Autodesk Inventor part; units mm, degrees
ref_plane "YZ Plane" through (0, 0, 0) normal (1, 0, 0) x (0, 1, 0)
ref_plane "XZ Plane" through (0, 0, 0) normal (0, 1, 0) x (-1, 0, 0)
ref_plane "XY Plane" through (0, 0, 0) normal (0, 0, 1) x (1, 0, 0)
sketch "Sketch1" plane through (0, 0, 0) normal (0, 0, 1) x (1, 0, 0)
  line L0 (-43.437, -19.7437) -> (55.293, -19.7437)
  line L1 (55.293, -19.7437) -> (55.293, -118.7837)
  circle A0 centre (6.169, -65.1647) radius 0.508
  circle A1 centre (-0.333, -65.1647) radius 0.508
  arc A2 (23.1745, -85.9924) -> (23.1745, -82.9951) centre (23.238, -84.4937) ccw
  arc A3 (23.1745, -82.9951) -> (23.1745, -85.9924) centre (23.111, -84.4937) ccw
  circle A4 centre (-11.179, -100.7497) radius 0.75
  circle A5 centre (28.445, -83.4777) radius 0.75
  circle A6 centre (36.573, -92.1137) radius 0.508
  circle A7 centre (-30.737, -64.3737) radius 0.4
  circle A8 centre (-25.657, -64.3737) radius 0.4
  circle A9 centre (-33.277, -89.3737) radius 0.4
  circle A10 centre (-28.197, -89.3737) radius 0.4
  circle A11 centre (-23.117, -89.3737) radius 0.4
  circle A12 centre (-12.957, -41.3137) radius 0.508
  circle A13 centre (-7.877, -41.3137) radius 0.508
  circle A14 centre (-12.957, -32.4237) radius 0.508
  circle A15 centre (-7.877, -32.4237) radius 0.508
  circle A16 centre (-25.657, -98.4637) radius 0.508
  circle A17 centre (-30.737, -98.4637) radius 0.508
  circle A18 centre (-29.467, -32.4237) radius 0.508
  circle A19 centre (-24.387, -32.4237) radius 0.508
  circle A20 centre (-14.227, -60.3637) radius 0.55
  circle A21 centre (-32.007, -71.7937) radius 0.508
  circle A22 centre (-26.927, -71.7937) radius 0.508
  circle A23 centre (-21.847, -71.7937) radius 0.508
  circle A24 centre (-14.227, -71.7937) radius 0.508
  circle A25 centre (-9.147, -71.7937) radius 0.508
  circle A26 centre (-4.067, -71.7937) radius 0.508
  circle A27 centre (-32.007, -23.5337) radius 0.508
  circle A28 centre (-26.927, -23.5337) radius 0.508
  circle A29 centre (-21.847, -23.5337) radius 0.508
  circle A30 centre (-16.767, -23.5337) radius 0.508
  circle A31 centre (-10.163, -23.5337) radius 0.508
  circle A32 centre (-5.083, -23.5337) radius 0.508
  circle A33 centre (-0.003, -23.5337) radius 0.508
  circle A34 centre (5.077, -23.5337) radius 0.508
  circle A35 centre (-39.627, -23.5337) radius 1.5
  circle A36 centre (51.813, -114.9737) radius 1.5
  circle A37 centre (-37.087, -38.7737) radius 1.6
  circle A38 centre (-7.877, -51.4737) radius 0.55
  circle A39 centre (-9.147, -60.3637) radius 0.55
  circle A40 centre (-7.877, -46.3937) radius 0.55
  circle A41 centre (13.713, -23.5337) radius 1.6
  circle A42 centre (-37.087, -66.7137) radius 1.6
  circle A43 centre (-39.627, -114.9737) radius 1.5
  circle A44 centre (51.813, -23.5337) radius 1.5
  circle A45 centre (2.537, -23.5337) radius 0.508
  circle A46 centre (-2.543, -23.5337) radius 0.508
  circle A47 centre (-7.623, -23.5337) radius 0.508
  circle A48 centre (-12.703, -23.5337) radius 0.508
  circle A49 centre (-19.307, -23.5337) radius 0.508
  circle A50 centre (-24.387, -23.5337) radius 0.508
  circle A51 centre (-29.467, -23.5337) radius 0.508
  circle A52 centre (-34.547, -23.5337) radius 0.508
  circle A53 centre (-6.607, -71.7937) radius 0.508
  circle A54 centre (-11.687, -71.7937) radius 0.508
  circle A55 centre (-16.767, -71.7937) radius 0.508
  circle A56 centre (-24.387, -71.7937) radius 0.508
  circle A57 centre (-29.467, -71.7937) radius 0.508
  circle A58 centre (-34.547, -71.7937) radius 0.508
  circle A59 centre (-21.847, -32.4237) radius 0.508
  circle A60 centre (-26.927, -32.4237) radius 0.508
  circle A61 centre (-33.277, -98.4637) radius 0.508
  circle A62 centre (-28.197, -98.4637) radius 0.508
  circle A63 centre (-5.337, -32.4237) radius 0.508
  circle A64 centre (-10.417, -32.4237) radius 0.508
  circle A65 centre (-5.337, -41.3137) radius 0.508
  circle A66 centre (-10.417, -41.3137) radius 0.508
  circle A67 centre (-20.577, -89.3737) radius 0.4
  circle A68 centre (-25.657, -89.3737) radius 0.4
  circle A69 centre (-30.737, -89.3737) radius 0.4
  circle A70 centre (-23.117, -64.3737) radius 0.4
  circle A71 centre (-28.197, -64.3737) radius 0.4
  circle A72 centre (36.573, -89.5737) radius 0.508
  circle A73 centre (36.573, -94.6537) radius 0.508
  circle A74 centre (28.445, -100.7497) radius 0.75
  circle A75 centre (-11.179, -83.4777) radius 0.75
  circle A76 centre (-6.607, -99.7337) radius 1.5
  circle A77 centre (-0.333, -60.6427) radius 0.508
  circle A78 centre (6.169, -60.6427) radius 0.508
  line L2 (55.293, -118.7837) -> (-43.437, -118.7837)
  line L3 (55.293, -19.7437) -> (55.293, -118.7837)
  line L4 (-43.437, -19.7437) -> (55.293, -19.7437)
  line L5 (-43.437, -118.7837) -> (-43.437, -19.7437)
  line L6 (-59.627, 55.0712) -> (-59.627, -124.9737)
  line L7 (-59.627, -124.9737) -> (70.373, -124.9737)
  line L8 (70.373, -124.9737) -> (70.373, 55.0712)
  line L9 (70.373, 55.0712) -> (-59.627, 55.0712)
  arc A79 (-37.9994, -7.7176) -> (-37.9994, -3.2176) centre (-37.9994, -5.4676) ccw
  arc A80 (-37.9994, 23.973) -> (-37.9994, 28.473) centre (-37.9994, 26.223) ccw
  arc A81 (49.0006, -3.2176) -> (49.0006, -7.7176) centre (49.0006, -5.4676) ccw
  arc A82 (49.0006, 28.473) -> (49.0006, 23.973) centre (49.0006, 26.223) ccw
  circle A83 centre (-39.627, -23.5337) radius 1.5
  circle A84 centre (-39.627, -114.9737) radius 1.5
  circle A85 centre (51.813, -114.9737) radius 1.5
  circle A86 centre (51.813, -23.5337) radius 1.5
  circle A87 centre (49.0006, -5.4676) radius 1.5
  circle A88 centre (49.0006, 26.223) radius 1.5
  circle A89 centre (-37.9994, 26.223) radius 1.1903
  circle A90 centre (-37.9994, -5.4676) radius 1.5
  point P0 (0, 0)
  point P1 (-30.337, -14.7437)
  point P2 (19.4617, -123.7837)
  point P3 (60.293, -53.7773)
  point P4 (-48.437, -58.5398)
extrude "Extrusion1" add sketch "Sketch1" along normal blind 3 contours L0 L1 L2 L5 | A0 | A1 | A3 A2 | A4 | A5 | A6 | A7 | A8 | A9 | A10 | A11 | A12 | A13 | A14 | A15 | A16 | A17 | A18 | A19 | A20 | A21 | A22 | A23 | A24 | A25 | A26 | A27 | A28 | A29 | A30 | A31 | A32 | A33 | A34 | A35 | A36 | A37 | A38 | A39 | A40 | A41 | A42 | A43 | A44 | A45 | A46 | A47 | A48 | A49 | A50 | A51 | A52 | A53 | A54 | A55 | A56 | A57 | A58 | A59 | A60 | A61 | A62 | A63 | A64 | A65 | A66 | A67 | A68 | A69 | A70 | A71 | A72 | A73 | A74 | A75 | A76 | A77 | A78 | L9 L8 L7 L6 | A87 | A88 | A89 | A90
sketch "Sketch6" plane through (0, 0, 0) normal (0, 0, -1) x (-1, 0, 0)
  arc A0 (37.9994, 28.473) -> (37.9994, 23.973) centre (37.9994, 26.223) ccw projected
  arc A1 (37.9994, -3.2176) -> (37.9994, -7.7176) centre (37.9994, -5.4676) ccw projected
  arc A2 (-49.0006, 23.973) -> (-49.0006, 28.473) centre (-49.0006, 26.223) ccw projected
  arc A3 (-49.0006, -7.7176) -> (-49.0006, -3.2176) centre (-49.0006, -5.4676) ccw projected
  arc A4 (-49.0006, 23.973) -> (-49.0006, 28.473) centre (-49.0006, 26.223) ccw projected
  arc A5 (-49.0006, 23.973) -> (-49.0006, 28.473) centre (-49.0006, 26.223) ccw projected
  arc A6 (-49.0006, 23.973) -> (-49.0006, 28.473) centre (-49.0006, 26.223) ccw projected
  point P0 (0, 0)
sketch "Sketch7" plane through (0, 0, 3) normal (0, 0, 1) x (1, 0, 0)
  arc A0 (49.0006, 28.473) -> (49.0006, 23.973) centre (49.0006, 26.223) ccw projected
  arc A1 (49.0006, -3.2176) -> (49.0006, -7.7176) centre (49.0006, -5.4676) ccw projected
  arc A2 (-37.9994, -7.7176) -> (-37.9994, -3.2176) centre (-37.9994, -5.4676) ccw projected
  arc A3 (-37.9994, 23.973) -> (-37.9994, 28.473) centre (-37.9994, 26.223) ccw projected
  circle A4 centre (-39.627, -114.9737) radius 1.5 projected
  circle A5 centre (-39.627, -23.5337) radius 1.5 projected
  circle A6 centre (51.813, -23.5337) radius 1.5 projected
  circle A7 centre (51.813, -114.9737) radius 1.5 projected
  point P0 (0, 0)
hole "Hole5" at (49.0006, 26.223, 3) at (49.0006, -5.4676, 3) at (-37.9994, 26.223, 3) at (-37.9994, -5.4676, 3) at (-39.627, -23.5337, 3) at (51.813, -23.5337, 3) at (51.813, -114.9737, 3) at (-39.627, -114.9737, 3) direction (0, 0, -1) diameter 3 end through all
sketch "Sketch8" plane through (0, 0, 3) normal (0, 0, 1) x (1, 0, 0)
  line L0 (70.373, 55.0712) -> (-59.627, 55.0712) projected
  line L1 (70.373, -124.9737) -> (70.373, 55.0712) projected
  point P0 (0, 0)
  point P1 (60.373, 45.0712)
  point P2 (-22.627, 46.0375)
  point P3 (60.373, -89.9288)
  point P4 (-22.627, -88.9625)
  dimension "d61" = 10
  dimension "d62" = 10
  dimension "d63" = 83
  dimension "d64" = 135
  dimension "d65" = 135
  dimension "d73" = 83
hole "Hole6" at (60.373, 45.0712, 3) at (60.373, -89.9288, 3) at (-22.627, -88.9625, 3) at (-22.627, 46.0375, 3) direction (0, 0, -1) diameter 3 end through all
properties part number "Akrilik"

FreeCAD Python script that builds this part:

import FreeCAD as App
import Part
import Sketcher
Q = App.Units.Quantity

doc = App.newDocument("Part")
body = doc.addObject("PartDesign::Body", "Body")

sketch1 = body.newObject("Sketcher::SketchObject", "Sketch")
sketch1.AttachmentSupport = (doc.getObject("XY_Plane"), [""])
sketch1.MapMode = "FlatFace"
sketch1.addGeometry(Part.LineSegment(App.Vector(70.373, 55.0712, 0), App.Vector(-59.627, 55.0712, 0)), False)
sketch1.addGeometry(Part.LineSegment(App.Vector(-59.627, 55.0712, 0), App.Vector(-59.627, -124.9737, 0)), False)
sketch1.addGeometry(Part.LineSegment(App.Vector(-59.627, -124.9737, 0), App.Vector(70.373, -124.9737, 0)), False)
sketch1.addGeometry(Part.LineSegment(App.Vector(70.373, -124.9737, 0), App.Vector(70.373, 55.0712, 0)), False)
sketch1.addConstraint(Sketcher.Constraint("Coincident", 0, 2, 1, 1))
sketch1.addConstraint(Sketcher.Constraint("Coincident", 1, 2, 2, 1))
sketch1.addConstraint(Sketcher.Constraint("Coincident", 2, 2, 3, 1))
sketch1.addConstraint(Sketcher.Constraint("Coincident", 3, 2, 0, 1))
sketch1.addConstraint(Sketcher.Constraint("Horizontal", 0))
sketch1.addConstraint(Sketcher.Constraint("Vertical", 1))
sketch1.addConstraint(Sketcher.Constraint("Horizontal", 2))
sketch1.addConstraint(Sketcher.Constraint("Vertical", 3))
sketch1.addConstraint(Sketcher.Constraint("DistanceX", 0, 2, 0, 1, Q("130 mm")))
sketch1.addConstraint(Sketcher.Constraint("DistanceY", 1, 2, 1, 1, Q("180.045 mm")))
sketch1.addConstraint(Sketcher.Constraint("DistanceX", 0, 2, -1, 1, Q("59.627 mm")))
sketch1.addConstraint(Sketcher.Constraint("DistanceY", -1, 1, 0, 2, Q("55.0712 mm")))
pad1 = body.newObject("PartDesign::Pad", "Pad")
pad1.Profile = sketch1
pad1.Length = 3

sketch2 = body.newObject("Sketcher::SketchObject", "Sketch001")
sketch2.AttachmentSupport = (doc.getObject("XY_Plane"), [""])
sketch2.MapMode = "FlatFace"
sketch2.AttachmentOffset = App.Placement(App.Vector(0, 0, 3), App.Rotation())
sketch2.addGeometry(Part.Circle(App.Vector(49.0006, 26.223, 0), App.Vector(0, 0, 1), 1.5), False)
sketch2.addGeometry(Part.Circle(App.Vector(49.0006, -5.4676, 0), App.Vector(0, 0, 1), 1.5), False)
sketch2.addGeometry(Part.Circle(App.Vector(-37.9994, 26.223, 0), App.Vector(0, 0, 1), 1.5), False)
sketch2.addGeometry(Part.Circle(App.Vector(-37.9994, -5.4676, 0), App.Vector(0, 0, 1), 1.5), False)
sketch2.addGeometry(Part.Circle(App.Vector(-39.627, -23.5337, 0), App.Vector(0, 0, 1), 1.5), False)
sketch2.addGeometry(Part.Circle(App.Vector(51.813, -23.5337, 0), App.Vector(0, 0, 1), 1.5), False)
sketch2.addGeometry(Part.Circle(App.Vector(51.813, -114.9737, 0), App.Vector(0, 0, 1), 1.5), False)
sketch2.addGeometry(Part.Circle(App.Vector(-39.627, -114.9737, 0), App.Vector(0, 0, 1), 1.5), False)
sketch2.addConstraint(Sketcher.Constraint("Equal", 0, 1))
sketch2.addConstraint(Sketcher.Constraint("Equal", 1, 2))
sketch2.addConstraint(Sketcher.Constraint("Equal", 2, 3))
sketch2.addConstraint(Sketcher.Constraint("Equal", 3, 4))
sketch2.addConstraint(Sketcher.Constraint("Equal", 4, 5))
sketch2.addConstraint(Sketcher.Constraint("Equal", 5, 6))
sketch2.addConstraint(Sketcher.Constraint("Equal", 6, 7))
sketch2.addConstraint(Sketcher.Constraint("Horizontal", 0, 3, 2, 3))
sketch2.addConstraint(Sketcher.Constraint("Horizontal", 1, 3, 3, 3))
sketch2.addConstraint(Sketcher.Constraint("Horizontal", 4, 3, 5, 3))
sketch2.addConstraint(Sketcher.Constraint("Horizontal", 6, 3, 7, 3))
sketch2.addConstraint(Sketcher.Constraint("Vertical", 0, 3, 1, 3))
sketch2.addConstraint(Sketcher.Constraint("Vertical", 2, 3, 3, 3))
sketch2.addConstraint(Sketcher.Constraint("Vertical", 5, 3, 6, 3))
sketch2.addConstraint(Sketcher.Constraint("Vertical", 4, 3, 7, 3))
sketch2.addConstraint(Sketcher.Constraint("Diameter", 0, Q("3 mm")))
sketch2.addConstraint(Sketcher.Constraint("DistanceX", 2, 3, 0, 3, Q("87 mm")))
sketch2.addConstraint(Sketcher.Constraint("DistanceX", 4, 3, 5, 3, Q("91.44 mm")))
sketch2.addConstraint(Sketcher.Constraint("DistanceY", 6, 3, 5, 3, Q("91.44 mm")))
sketch2.addConstraint(Sketcher.Constraint("DistanceY", -1, 1, 0, 3, Q("26.223 mm")))
sketch2.addConstraint(Sketcher.Constraint("DistanceX", 4, 3, -1, 1, Q("39.627 mm")))
sketch2.addConstraint(Sketcher.Constraint("DistanceY", 4, 3, 3, 3, Q("18.066 mm")))
sketch2.addConstraint(Sketcher.Constraint("DistanceX", -1, 1, 0, 3, Q("49.0006 mm")))
sketch2.addConstraint(Sketcher.Constraint("DistanceY", 1, 3, -1, 1, Q("5.4676 mm")))
doc.recompute()
hole = body.newObject("PartDesign::Hole", "Hole")
hole.Profile = sketch2
hole.ThreadType = "None"
hole.Diameter = 3
hole.DepthType = "ThroughAll"

sketch3 = body.newObject("Sketcher::SketchObject", "Sketch002")
sketch3.AttachmentSupport = (doc.getObject("XY_Plane"), [""])
sketch3.MapMode = "FlatFace"
sketch3.AttachmentOffset = App.Placement(App.Vector(0, 0, 3), App.Rotation())
sketch3.addGeometry(Part.Circle(App.Vector(60.373, 45.0712, 0), App.Vector(0, 0, 1), 1.5), False)
sketch3.addGeometry(Part.Circle(App.Vector(60.373, -89.9288, 0), App.Vector(0, 0, 1), 1.5), False)
sketch3.addGeometry(Part.Circle(App.Vector(-22.627, -88.9625, 0), App.Vector(0, 0, 1), 1.5), False)
sketch3.addGeometry(Part.Circle(App.Vector(-22.627, 46.0375, 0), App.Vector(0, 0, 1), 1.5), False)
sketch3.addConstraint(Sketcher.Constraint("Equal", 0, 1))
sketch3.addConstraint(Sketcher.Constraint("Equal", 1, 2))
sketch3.addConstraint(Sketcher.Constraint("Equal", 2, 3))
sketch3.addConstraint(Sketcher.Constraint("Vertical", 0, 3, 1, 3))
sketch3.addConstraint(Sketcher.Constraint("Vertical", 2, 3, 3, 3))
sketch3.addConstraint(Sketcher.Constraint("Diameter", 0, Q("3 mm")))
sketch3.addConstraint(Sketcher.Constraint("DistanceY", 1, 3, 0, 3, Q("135 mm")))
sketch3.addConstraint(Sketcher.Constraint("DistanceX", 2, 3, 1, 3, Q("83 mm")))
sketch3.addConstraint(Sketcher.Constraint("DistanceY", 2, 3, 3, 3, Q("135 mm")))
sketch3.addConstraint(Sketcher.Constraint("DistanceX", -1, 1, 0, 3, Q("60.373 mm")))
sketch3.addConstraint(Sketcher.Constraint("DistanceY", -1, 1, 0, 3, Q("45.0712 mm")))
sketch3.addConstraint(Sketcher.Constraint("DistanceY", 2, 3, -1, 1, Q("88.9625 mm")))
doc.recompute()
hole2 = body.newObject("PartDesign::Hole", "Hole001")
hole2.Profile = sketch3
hole2.ThreadType = "None"
hole2.Diameter = 3
hole2.DepthType = "ThroughAll"

doc.recompute()
